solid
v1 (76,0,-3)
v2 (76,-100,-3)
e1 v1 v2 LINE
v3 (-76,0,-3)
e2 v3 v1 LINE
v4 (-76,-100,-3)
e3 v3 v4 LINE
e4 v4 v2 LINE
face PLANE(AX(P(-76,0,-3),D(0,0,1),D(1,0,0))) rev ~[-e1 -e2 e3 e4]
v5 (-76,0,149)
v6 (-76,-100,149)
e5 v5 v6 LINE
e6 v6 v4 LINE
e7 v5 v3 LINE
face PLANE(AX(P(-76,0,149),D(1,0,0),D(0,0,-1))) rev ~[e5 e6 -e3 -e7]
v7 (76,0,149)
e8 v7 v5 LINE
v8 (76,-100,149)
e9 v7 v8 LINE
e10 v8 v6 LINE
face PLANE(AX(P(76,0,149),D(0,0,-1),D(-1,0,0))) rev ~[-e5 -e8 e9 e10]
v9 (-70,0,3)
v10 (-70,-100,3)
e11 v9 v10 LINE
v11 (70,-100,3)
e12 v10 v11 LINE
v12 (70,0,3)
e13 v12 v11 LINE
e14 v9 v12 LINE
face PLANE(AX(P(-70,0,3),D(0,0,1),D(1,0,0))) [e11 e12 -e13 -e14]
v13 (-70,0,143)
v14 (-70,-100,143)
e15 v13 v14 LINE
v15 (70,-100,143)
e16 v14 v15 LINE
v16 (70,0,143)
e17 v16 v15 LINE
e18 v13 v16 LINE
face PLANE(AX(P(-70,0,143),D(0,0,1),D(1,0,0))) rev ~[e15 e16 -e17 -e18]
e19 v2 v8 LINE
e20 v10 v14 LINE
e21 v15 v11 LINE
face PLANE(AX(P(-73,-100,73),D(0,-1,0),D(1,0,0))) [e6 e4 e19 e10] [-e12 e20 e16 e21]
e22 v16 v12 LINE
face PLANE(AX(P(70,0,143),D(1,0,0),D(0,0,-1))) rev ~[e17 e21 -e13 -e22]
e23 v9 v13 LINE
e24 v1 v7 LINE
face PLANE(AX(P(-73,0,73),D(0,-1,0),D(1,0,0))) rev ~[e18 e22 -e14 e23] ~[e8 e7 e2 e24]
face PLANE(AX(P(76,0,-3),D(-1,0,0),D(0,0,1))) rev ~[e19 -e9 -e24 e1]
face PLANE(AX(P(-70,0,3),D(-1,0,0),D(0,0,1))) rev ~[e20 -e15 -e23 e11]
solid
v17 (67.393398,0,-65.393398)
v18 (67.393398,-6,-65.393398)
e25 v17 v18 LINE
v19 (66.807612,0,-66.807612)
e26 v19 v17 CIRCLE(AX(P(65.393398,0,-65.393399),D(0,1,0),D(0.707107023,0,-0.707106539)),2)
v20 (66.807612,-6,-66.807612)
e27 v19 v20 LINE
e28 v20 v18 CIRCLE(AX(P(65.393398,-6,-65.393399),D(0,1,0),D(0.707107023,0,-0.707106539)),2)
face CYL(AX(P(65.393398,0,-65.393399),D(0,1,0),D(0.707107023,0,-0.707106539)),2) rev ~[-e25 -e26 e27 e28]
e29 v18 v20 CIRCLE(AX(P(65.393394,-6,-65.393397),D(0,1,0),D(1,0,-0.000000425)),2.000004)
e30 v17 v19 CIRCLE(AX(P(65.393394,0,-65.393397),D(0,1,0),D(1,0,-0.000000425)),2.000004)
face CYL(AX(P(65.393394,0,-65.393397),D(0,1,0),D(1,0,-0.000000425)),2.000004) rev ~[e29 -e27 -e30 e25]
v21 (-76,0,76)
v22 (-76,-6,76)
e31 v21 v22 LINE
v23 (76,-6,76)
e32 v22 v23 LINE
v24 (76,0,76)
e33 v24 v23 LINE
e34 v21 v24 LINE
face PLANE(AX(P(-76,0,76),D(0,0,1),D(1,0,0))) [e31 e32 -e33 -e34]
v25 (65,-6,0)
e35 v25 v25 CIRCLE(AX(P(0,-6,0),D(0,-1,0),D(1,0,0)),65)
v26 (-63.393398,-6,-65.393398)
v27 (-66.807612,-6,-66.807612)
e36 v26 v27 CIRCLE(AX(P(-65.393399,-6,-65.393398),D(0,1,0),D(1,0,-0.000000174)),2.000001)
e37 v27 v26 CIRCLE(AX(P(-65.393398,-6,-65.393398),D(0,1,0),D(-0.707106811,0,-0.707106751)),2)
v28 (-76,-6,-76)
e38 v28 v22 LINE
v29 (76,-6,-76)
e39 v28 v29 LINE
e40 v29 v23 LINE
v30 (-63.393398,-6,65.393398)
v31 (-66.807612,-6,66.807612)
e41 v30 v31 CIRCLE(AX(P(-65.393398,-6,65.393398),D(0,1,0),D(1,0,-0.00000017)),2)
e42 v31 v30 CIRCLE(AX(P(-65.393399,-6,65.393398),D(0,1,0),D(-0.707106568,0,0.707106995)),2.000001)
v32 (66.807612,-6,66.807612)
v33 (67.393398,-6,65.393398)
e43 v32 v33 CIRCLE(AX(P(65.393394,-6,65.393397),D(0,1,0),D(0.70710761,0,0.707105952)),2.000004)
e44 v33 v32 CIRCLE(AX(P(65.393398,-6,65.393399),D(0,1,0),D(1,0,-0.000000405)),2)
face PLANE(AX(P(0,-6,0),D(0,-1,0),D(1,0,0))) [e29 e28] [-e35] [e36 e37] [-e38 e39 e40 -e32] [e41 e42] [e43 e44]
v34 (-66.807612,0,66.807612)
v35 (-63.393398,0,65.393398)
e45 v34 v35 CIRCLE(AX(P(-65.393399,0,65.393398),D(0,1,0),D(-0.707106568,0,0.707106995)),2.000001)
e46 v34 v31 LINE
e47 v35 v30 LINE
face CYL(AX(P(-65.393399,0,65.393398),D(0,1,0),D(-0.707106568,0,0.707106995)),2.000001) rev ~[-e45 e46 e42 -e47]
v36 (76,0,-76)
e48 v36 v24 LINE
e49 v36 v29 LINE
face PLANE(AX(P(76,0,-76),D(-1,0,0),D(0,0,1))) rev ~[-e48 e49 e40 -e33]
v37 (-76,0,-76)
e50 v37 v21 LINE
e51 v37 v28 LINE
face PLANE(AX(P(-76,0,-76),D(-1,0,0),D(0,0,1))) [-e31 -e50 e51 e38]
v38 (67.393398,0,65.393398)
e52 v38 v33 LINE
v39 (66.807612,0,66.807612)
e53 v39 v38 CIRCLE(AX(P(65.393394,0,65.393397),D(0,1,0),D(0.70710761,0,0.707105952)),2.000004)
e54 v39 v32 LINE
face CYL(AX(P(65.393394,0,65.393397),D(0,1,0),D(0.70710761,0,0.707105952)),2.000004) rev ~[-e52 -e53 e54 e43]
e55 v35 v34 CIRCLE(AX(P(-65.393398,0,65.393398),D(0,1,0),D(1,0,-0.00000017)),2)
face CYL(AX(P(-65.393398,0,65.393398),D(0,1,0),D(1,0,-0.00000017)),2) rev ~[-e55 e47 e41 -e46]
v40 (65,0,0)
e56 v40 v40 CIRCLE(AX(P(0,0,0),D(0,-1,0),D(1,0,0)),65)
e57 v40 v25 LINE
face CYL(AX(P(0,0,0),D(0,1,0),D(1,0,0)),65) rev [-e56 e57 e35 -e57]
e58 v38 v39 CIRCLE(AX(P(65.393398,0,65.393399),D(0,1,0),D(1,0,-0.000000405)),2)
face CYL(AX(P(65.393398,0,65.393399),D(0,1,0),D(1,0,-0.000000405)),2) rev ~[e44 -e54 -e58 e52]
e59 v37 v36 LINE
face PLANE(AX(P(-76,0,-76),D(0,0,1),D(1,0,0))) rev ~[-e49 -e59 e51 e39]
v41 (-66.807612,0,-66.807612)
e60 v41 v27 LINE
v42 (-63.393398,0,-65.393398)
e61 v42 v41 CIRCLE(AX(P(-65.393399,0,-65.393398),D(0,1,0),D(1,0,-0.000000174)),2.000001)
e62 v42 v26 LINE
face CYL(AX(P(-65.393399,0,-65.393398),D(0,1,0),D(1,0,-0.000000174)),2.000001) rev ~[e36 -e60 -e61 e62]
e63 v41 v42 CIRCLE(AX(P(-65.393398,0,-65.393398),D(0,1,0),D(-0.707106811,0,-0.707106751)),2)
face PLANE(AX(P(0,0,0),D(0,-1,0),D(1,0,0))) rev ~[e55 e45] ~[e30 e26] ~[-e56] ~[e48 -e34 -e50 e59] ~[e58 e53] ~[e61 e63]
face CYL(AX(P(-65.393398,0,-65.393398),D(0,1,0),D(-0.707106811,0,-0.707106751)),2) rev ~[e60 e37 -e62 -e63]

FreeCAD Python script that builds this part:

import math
import FreeCAD as App
import Part
import Sketcher

V = App.Vector
Q = App.Units.Quantity

doc = App.newDocument("Part")
body = doc.addObject("PartDesign::Body", "Body")

# Sketch on XZ plane
sketch1 = body.newObject("Sketcher::SketchObject", "Sketch")
sketch1.AttachmentSupport = (doc.getObject("XZ_Plane"), [""])
sketch1.MapMode = "FlatFace"
sketch1.addGeometry([
    Part.LineSegment(V(76, -3, 0), V(76, 149, 0)),  # 0
    Part.LineSegment(V(76, 149, 0), V(-76, 149, 0)),  # 1
    Part.LineSegment(V(-76, 149, 0), V(-76, -3, 0)),  # 2
    Part.LineSegment(V(-76, -3, 0), V(76, -3, 0)),  # 3
    Part.LineSegment(V(-70, 3, 0), V(-70, 143, 0)),  # 4
    Part.LineSegment(V(-70, 143, 0), V(70, 143, 0)),  # 5
    Part.LineSegment(V(70, 143, 0), V(70, 3, 0)),  # 6
    Part.LineSegment(V(70, 3, 0), V(-70, 3, 0)),  # 7
], False)
sketch1.addConstraint([
    Sketcher.Constraint("Coincident", 0, 2, 1, 1),
    Sketcher.Constraint("Coincident", 1, 2, 2, 1),
    Sketcher.Constraint("Coincident", 2, 2, 3, 1),
    Sketcher.Constraint("Coincident", 3, 2, 0, 1),
    Sketcher.Constraint("Coincident", 4, 2, 5, 1),
    Sketcher.Constraint("Coincident", 5, 2, 6, 1),
    Sketcher.Constraint("Coincident", 6, 2, 7, 1),
    Sketcher.Constraint("Coincident", 7, 2, 4, 1),
    Sketcher.Constraint("Vertical", 0),
    Sketcher.Constraint("Horizontal", 1),
    Sketcher.Constraint("Vertical", 2),
    Sketcher.Constraint("Horizontal", 3),
    Sketcher.Constraint("Vertical", 4),
    Sketcher.Constraint("Horizontal", 5),
    Sketcher.Constraint("Vertical", 6),
    Sketcher.Constraint("Horizontal", 7),
    Sketcher.Constraint("Equal", 3, 0),
    Sketcher.Constraint("Equal", 7, 4),
    Sketcher.Constraint("DistanceX", 1, 2, 1, 1, Q("152 mm")),
    Sketcher.Constraint("DistanceX", 5, 1, 5, 2, Q("140 mm")),
    Sketcher.Constraint("DistanceX", -1, 1, 0, 2, Q("76 mm")),
    Sketcher.Constraint("DistanceY", -1, 1, 0, 2, Q("149 mm")),
    Sketcher.Constraint("DistanceX", 4, 2, -1, 1, Q("70 mm")),
    Sketcher.Constraint("DistanceY", -1, 1, 4, 2, Q("143 mm")),
])
pad1 = body.newObject("PartDesign::Pad", "Pad")
pad1.Profile = sketch1
pad1.Length = 100
body2 = doc.addObject("PartDesign::Body", "Body001")

# Sketch on XZ plane
sketch2 = body2.newObject("Sketcher::SketchObject", "Sketch001")
sketch2.AttachmentSupport = (doc.getObject("XZ_Plane001"), [""])
sketch2.MapMode = "FlatFace"
sketch2.addGeometry([
    Part.LineSegment(V(-76, 76, 0), V(-76, -76, 0)),  # 0
    Part.LineSegment(V(-76, -76, 0), V(76, -76, 0)),  # 1
    Part.LineSegment(V(76, -76, 0), V(76, 76, 0)),  # 2
    Part.LineSegment(V(76, 76, 0), V(-76, 76, 0)),  # 3
    Part.ArcOfCircle(Part.Circle(V(-65.4, -65.4, 0), V(0, 0, 1), 2), math.radians(0), math.radians(225)),  # 4
    Part.ArcOfCircle(Part.Circle(V(-65.4, -65.4, 0), V(0, 0, 1), 2), math.radians(-135), math.radians(0)),  # 5
    Part.ArcOfCircle(Part.Circle(V(65.4, -65.4, 0), V(0, 0, 1), 2), math.radians(0), math.radians(315)),  # 6
    Part.ArcOfCircle(Part.Circle(V(65.4, -65.4, 0), V(0, 0, 1), 2), math.radians(-45), math.radians(0)),  # 7
    Part.ArcOfCircle(Part.Circle(V(-65.4, 65.4, 0), V(0, 0, 1), 2), math.radians(0), math.radians(135)),  # 8
    Part.ArcOfCircle(Part.Circle(V(-65.4, 65.4, 0), V(0, 0, 1), 2), math.radians(135), math.radians(360)),  # 9
    Part.Circle(V(0, 0, 0), V(0, 0, 1), 65),  # 10
    Part.ArcOfCircle(Part.Circle(V(65.4, 65.4, 0), V(0, 0, 1), 2), math.radians(0), math.radians(45)),  # 11
    Part.ArcOfCircle(Part.Circle(V(65.4, 65.4, 0), V(0, 0, 1), 2), math.radians(45), math.radians(360)),  # 12
], False)
sketch2.addConstraint([
    Sketcher.Constraint("Coincident", 0, 2, 1, 1),
    Sketcher.Constraint("Coincident", 1, 2, 2, 1),
    Sketcher.Constraint("Coincident", 2, 2, 3, 1),
    Sketcher.Constraint("Coincident", 3, 2, 0, 1),
    Sketcher.Constraint("Tangent", 4, 1, 5, 2),
    Sketcher.Constraint("Coincident", 5, 1, 4, 2),
    Sketcher.Constraint("Tangent", 6, 1, 7, 2),
    Sketcher.Constraint("Coincident", 7, 1, 6, 2),
    Sketcher.Constraint("Tangent", 8, 1, 9, 2),
    Sketcher.Constraint("Coincident", 9, 1, 8, 2),
    Sketcher.Constraint("Tangent", 11, 1, 12, 2),
    Sketcher.Constraint("Coincident", 12, 1, 11, 2),
    Sketcher.Constraint("Vertical", 0),
    Sketcher.Constraint("Horizontal", 1),
    Sketcher.Constraint("Vertical", 2),
    Sketcher.Constraint("Horizontal", 3),
    Sketcher.Constraint("Coincident", 10, 3, -1, 1),
    Sketcher.Constraint("Equal", 5, 6),
    Sketcher.Constraint("Equal", 6, 8),
    Sketcher.Constraint("Equal", 7, 11),
    Sketcher.Constraint("Symmetric", 6, 3, 8, 3, -1, 1),
    Sketcher.Constraint("Symmetric", 4, 3, 11, 3, -1, 1),
    Sketcher.Constraint("Symmetric", 0, 2, 2, 2, -1, 1),
    Sketcher.Constraint("Symmetric", 4, 3, 6, 3, -2),
    Sketcher.Constraint("Horizontal", 7, 3, 4, 1),
    Sketcher.Constraint("Horizontal", 4, 1, 6, 1),
    Sketcher.Constraint("Horizontal", 5, 1, 7, 1),
    Sketcher.Constraint("Horizontal", 12, 3, 8, 1),
    Sketcher.Constraint("Horizontal", 8, 1, 11, 1),
    Sketcher.Constraint("Horizontal", 9, 1, 12, 1),
    Sketcher.Constraint("Vertical", 5, 1, 9, 1),
    Sketcher.Constraint("Equal", 3, 0),
    Sketcher.Constraint("Diameter", 10, Q("130 mm")),
    Sketcher.Constraint("Radius", 4, Q("2 mm")),
    Sketcher.Constraint("DistanceX", 1, 1, 1, 2, Q("152 mm")),
    Sketcher.Constraint("DistanceX", 4, 3, -1, 1, Q("65.393398 mm")),
    Sketcher.Constraint("DistanceY", 4, 3, -1, 1, Q("65.393398 mm")),
    Sketcher.Constraint("DistanceX", 5, 1, -1, 1, Q("66.807612 mm")),
])
pad2 = body2.newObject("PartDesign::Pad", "Pad001")
pad2.Profile = sketch2
pad2.Length = 6

doc.recompute()
